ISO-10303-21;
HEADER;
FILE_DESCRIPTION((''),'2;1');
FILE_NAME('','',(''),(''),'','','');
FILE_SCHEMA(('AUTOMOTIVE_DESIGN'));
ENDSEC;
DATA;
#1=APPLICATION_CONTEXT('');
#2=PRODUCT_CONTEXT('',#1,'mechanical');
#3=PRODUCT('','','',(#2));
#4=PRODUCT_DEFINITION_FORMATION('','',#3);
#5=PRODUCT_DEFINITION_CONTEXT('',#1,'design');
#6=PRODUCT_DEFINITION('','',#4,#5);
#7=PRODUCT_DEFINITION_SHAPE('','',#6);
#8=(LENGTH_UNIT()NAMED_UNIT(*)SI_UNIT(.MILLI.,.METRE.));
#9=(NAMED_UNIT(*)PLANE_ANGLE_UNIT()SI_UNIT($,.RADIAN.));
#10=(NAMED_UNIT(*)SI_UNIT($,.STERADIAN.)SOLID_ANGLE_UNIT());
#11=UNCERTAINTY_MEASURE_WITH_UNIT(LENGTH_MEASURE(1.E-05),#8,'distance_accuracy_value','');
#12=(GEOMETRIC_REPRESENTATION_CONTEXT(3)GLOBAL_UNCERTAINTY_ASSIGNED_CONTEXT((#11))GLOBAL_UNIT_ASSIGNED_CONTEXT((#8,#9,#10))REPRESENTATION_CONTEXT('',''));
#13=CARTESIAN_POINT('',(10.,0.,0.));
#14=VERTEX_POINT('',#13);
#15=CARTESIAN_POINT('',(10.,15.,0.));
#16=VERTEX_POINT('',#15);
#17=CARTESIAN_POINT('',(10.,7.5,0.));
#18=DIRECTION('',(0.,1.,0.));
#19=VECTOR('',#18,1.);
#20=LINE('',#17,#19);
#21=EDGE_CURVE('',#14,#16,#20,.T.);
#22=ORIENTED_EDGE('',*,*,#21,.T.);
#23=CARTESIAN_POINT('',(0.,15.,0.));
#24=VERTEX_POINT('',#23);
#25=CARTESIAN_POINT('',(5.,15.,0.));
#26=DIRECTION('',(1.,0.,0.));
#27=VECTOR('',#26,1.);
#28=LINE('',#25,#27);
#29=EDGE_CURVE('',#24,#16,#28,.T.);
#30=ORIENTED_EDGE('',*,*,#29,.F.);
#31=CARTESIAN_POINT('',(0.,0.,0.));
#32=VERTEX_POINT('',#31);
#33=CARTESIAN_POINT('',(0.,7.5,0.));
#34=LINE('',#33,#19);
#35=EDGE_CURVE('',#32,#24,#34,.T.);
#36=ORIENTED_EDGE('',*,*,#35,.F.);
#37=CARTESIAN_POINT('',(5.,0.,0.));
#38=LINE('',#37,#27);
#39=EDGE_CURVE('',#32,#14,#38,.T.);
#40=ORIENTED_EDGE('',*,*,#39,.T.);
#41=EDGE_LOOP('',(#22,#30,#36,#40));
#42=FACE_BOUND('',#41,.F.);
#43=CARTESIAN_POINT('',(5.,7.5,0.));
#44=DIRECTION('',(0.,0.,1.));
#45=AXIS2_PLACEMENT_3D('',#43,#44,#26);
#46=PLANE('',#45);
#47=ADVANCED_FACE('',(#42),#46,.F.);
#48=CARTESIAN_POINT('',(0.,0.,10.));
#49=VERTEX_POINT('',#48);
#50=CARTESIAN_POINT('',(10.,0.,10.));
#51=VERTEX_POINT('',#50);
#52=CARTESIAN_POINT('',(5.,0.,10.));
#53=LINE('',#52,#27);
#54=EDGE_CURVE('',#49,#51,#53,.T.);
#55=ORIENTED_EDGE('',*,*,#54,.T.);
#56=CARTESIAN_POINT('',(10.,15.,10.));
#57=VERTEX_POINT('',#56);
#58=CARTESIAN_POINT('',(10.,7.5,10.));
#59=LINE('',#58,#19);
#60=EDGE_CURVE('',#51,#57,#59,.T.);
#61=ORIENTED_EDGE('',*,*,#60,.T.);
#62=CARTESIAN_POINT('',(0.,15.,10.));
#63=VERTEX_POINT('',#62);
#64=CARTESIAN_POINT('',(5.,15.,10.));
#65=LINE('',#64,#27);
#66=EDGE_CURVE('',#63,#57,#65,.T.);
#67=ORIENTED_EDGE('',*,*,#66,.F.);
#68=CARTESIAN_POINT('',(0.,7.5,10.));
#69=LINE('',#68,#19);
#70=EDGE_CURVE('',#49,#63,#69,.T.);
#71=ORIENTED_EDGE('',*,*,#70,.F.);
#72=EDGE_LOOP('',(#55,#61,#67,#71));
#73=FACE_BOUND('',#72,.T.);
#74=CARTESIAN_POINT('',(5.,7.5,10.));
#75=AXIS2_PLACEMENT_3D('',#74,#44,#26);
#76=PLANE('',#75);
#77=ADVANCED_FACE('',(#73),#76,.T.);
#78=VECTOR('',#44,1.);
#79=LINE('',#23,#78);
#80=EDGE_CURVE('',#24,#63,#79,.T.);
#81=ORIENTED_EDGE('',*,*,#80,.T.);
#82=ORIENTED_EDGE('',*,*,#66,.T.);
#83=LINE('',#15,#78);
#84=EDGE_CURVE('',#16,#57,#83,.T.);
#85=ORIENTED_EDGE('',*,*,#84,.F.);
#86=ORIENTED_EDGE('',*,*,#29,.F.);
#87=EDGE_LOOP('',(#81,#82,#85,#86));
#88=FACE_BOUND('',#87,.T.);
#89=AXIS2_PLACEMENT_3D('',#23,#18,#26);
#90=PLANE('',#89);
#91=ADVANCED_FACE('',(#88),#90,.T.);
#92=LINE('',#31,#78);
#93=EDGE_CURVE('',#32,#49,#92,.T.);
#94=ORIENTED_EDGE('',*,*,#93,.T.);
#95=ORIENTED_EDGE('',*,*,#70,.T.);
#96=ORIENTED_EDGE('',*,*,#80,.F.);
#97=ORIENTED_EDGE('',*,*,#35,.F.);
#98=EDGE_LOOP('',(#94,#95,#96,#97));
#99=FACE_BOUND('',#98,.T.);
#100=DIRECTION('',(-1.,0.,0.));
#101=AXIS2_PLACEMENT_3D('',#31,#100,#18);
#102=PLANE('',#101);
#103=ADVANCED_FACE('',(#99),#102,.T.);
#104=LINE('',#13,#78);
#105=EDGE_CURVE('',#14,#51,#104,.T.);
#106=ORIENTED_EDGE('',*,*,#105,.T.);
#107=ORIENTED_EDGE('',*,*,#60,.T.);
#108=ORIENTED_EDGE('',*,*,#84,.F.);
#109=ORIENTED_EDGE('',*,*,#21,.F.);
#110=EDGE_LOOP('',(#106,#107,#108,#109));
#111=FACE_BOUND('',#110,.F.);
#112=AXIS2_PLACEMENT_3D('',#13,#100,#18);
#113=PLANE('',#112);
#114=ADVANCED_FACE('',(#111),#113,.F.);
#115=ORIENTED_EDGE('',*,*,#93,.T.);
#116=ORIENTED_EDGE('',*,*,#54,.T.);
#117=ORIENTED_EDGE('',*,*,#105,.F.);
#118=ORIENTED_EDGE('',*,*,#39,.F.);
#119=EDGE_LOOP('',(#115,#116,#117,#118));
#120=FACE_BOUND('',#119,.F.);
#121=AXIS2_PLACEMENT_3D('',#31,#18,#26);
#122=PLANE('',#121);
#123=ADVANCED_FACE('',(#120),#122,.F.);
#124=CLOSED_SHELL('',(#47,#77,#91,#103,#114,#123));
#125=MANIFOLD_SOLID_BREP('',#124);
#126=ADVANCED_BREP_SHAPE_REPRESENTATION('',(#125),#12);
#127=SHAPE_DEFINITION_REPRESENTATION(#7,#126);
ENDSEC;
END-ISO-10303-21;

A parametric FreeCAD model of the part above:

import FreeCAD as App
import Part
import Sketcher
from FreeCAD import Vector

doc = App.newDocument("Part")
body = doc.addObject("PartDesign::Body", "Body")

sketch1 = body.newObject("Sketcher::SketchObject", "Sketch")
sketch1.AttachmentSupport = (doc.getObject("XY_Plane"), [""])
sketch1.MapMode = "FlatFace"
sketch1.addGeometry(Part.LineSegment(Vector(0, 15, 0), Vector(0, 0, 0)), False)
sketch1.addGeometry(Part.LineSegment(Vector(0, 0, 0), Vector(10, 0, 0)), False)
sketch1.addGeometry(Part.LineSegment(Vector(10, 0, 0), Vector(10, 15, 0)), False)
sketch1.addGeometry(Part.LineSegment(Vector(10, 15, 0), Vector(0, 15, 0)), False)
sketch1.addConstraint(Sketcher.Constraint("Coincident", 0, 2, 1, 1))
sketch1.addConstraint(Sketcher.Constraint("Coincident", 1, 2, 2, 1))
sketch1.addConstraint(Sketcher.Constraint("Coincident", 2, 2, 3, 1))
sketch1.addConstraint(Sketcher.Constraint("Coincident", 3, 2, 0, 1))
sketch1.addConstraint(Sketcher.Constraint("Vertical", 0))
sketch1.addConstraint(Sketcher.Constraint("Horizontal", 1))
sketch1.addConstraint(Sketcher.Constraint("Vertical", 2))
sketch1.addConstraint(Sketcher.Constraint("Horizontal", 3))
sketch1.addConstraint(Sketcher.Constraint("Coincident", 0, 2, -1, 1))
sketch1.addConstraint(Sketcher.Constraint("DistanceX", 1, 1, 1, 2, 10.0))
sketch1.addConstraint(Sketcher.Constraint("DistanceY", 0, 2, 0, 1, 15.0))
pad1 = body.newObject("PartDesign::Pad", "Pad")
pad1.Profile = sketch1
pad1.Length = 10

doc.recompute()
